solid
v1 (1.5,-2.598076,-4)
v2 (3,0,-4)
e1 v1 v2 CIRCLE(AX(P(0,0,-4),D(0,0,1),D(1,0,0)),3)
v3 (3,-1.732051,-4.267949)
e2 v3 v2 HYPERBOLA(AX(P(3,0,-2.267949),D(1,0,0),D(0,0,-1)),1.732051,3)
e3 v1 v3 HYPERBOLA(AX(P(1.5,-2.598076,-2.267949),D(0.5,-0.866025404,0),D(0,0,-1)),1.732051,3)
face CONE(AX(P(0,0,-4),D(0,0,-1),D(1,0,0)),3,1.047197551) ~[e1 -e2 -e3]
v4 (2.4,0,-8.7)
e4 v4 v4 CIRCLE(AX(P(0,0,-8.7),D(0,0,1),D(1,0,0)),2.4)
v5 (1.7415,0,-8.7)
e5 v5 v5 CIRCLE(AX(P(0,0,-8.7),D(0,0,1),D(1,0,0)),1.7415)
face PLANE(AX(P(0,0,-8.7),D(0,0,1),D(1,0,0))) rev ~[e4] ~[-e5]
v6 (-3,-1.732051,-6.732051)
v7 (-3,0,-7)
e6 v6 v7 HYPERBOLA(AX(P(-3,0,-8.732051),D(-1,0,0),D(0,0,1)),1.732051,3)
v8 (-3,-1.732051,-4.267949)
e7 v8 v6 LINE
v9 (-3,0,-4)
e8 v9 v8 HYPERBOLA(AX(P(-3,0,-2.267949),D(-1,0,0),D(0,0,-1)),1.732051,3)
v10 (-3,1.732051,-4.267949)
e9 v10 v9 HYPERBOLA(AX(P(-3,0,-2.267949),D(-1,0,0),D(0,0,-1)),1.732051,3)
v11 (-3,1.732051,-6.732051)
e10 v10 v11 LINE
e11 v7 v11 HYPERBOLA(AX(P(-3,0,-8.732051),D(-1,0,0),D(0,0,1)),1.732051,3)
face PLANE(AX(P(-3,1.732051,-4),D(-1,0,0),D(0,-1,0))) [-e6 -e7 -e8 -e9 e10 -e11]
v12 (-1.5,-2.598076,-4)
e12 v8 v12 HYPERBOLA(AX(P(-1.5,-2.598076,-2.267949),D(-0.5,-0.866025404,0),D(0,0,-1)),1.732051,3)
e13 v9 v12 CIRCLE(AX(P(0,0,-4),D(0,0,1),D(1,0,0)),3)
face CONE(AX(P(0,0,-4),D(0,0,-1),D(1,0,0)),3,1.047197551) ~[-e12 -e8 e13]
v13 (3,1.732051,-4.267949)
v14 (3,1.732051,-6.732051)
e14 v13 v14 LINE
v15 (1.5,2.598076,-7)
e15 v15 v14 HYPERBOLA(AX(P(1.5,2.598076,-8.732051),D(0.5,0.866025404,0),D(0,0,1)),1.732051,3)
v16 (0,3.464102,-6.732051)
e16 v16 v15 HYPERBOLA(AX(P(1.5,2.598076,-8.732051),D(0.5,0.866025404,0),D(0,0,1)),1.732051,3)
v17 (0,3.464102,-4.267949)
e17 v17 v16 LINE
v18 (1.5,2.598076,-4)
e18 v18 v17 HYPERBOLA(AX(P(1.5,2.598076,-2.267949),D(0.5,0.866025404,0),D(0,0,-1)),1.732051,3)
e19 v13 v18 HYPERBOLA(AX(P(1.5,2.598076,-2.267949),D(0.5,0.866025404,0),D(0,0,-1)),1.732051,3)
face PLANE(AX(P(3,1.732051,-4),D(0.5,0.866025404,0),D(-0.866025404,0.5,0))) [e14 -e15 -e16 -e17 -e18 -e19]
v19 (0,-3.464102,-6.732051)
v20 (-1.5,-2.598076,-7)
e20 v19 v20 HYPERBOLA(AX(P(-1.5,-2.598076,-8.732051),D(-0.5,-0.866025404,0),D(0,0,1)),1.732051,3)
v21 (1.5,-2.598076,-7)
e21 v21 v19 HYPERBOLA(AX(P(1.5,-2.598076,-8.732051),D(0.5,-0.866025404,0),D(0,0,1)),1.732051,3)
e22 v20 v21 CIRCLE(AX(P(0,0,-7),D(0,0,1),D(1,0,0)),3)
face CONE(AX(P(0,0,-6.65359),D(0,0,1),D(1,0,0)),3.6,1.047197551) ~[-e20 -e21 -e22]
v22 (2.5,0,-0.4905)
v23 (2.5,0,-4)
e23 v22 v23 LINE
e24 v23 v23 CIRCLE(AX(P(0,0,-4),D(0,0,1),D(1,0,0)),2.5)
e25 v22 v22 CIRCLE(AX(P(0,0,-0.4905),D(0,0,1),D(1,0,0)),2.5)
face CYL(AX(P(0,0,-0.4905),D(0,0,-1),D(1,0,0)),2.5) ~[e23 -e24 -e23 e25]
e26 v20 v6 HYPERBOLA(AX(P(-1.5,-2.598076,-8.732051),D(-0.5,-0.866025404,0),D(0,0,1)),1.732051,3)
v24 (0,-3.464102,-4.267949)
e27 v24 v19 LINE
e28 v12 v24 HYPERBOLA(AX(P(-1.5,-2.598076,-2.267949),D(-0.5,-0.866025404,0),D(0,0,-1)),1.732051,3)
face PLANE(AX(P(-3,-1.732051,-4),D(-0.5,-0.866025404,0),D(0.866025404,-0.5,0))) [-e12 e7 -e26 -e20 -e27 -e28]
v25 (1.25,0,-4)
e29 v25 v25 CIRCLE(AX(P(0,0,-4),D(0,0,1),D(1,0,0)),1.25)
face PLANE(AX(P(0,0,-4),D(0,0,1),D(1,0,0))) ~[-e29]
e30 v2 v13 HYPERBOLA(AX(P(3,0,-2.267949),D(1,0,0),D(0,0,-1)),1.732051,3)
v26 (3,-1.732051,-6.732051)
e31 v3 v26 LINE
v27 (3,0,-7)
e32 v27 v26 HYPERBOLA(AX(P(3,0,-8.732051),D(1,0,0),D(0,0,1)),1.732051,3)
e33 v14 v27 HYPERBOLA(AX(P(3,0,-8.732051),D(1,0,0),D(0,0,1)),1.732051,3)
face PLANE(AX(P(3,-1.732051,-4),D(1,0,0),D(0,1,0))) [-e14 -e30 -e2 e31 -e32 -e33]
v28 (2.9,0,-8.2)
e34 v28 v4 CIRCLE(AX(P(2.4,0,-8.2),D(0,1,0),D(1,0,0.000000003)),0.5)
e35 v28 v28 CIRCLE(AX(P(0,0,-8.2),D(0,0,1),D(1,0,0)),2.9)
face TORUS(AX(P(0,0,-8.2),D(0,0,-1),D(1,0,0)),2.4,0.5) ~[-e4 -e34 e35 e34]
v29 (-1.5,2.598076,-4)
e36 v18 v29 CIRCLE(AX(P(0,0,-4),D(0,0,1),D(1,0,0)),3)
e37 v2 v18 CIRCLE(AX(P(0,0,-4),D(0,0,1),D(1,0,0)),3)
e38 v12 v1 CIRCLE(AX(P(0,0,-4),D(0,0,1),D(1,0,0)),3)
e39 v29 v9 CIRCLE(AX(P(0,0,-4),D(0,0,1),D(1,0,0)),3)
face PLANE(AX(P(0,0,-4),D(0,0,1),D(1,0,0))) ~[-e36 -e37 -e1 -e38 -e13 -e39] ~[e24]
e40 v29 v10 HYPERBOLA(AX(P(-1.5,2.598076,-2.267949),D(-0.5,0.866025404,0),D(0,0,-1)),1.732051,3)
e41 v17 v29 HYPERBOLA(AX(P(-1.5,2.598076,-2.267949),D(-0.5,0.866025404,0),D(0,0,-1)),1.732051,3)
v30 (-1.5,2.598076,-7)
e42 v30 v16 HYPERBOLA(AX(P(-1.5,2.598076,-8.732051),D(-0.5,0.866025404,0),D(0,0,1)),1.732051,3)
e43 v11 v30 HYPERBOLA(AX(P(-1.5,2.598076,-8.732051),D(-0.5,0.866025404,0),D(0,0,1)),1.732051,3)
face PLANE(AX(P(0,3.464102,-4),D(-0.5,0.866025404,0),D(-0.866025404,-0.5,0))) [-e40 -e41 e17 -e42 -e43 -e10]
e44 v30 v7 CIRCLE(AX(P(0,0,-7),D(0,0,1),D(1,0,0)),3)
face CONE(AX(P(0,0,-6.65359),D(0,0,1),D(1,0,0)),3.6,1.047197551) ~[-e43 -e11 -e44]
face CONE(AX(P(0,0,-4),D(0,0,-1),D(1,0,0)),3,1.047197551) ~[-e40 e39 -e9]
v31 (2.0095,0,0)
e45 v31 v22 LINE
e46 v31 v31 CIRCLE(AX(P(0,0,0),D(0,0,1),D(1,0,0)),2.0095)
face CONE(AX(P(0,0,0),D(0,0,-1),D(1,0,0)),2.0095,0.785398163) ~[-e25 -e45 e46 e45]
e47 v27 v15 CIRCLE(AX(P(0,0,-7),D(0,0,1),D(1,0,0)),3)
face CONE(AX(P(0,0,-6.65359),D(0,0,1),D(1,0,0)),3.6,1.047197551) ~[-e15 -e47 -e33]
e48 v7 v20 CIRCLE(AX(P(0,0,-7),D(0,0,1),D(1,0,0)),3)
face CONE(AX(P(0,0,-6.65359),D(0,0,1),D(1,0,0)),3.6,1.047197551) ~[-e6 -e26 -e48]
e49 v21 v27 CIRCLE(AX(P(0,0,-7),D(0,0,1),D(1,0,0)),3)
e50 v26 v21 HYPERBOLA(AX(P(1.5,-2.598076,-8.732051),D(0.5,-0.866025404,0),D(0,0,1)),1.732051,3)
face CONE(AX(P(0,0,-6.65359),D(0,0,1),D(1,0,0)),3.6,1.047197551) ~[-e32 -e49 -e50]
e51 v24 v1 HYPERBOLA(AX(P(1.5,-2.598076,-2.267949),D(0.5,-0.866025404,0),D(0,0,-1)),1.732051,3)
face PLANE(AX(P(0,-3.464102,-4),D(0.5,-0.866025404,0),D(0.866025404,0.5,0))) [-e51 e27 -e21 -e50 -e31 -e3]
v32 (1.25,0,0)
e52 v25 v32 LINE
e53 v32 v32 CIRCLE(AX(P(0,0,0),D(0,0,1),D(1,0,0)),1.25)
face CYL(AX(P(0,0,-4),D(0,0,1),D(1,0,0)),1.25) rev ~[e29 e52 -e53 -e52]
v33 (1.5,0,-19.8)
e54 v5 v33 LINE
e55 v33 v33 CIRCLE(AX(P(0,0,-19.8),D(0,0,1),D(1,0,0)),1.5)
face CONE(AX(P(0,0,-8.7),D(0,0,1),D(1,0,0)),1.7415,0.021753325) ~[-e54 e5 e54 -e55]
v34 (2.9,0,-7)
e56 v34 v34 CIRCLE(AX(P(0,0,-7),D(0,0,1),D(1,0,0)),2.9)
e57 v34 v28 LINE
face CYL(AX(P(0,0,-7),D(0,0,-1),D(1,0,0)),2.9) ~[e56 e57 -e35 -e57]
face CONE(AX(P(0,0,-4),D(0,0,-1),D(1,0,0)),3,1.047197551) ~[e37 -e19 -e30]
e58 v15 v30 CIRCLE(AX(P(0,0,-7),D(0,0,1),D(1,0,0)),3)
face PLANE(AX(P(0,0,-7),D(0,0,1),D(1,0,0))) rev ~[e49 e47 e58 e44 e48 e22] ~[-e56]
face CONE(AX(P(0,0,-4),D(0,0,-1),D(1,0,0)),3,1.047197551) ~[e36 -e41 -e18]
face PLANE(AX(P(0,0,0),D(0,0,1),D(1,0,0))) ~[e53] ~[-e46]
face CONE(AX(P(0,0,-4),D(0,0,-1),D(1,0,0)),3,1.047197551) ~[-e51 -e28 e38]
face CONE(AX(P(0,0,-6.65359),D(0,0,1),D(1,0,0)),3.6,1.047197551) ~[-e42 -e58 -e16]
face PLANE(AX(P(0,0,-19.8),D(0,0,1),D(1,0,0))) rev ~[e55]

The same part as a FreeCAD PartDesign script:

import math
import FreeCAD as App
import Part
import Sketcher

V = App.Vector
Q = App.Units.Quantity


def add_polygon(sketch, points):
    """Adds a closed chain of lines whose ends are joined by coincident constraints."""
    first, n = sketch.GeometryCount, len(points)
    for a, b in zip(points, points[1:] + points[:1]):
        sketch.addGeometry(Part.LineSegment(App.Vector(*a, 0), App.Vector(*b, 0)), False)
    for i in range(n):
        sketch.addConstraint(Sketcher.Constraint("Coincident", first + i, 2, first + (i + 1) % n, 1))

doc = App.newDocument("Part")
params = doc.addObject("Spreadsheet::Sheet", "Params")
for row, (alias, value) in enumerate([
    ("sketch1_radius", "0.5 mm"),
    ("sketch1_height", "4 mm"),
    ("sketch1_width", "1.5 mm"),
    ("sketch1_width2", "0.1 mm"),
    ("sketch1_width3", "0.5 mm"),
    ("revolution_angle", "360 deg"),
    ("sketch2_width", "12 mm"),
    ("pocket1_length", "3 mm"),
], start=1):
    params.set(f"A{row}", alias)
    params.set(f"B{row}", "=" + value)
    params.setAlias(f"B{row}", alias)

body = doc.addObject("PartDesign::Body", "Body")

sketch1 = body.newObject("Sketcher::SketchObject", "Sketch")
sketch1.AttachmentSupport = (doc.getObject("YZ_Plane"), [""])
sketch1.MapMode = "FlatFace"
sketch1.addGeometry(Part.LineSegment(V(1.25, -4, 0), V(0, -4, 0)), False)
sketch1.addGeometry(Part.LineSegment(V(0, -4, 0), V(0, -19.8, 0)), False)
sketch1.addGeometry(Part.LineSegment(V(0, -19.8, 0), V(1.5, -19.8, 0)), False)
sketch1.addGeometry(Part.LineSegment(V(1.5, -19.8, 0), V(1.74, -8.7, 0)), False)
sketch1.addGeometry(Part.LineSegment(V(1.74, -8.7, 0), V(2.4, -8.7, 0)), False)
sketch1.addGeometry(Part.ArcOfCircle(Part.Circle(V(2.4, -8.2, 0), V(0, 0, 1), 0.5), math.radians(-90), math.radians(0)), False)
sketch1.addGeometry(Part.LineSegment(V(2.9, -8.2, 0), V(2.9, -7, 0)), False)
sketch1.addGeometry(Part.LineSegment(V(2.9, -7, 0), V(3, -7, 0)), False)
sketch1.addGeometry(Part.LineSegment(V(3, -7, 0), V(3.6, -6.65, 0)), False)
sketch1.addGeometry(Part.LineSegment(V(3.6, -6.65, 0), V(3.6, -4.35, 0)), False)
sketch1.addGeometry(Part.LineSegment(V(3.6, -4.35, 0), V(3, -4, 0)), False)
sketch1.addGeometry(Part.LineSegment(V(3, -4, 0), V(2.5, -4, 0)), False)
sketch1.addGeometry(Part.LineSegment(V(2.5, -4, 0), V(2.5, -0.49, 0)), False)
sketch1.addGeometry(Part.LineSegment(V(2.5, -0.49, 0), V(2.01, 0, 0)), False)
sketch1.addGeometry(Part.LineSegment(V(2.01, 0, 0), V(1.25, 0, 0)), False)
sketch1.addGeometry(Part.LineSegment(V(1.25, 0, 0), V(1.25, -4, 0)), False)
sketch1.addConstraint(Sketcher.Constraint("Coincident", 0, 2, 1, 1))
sketch1.addConstraint(Sketcher.Constraint("Coincident", 1, 2, 2, 1))
sketch1.addConstraint(Sketcher.Constraint("Coincident", 2, 2, 3, 1))
sketch1.addConstraint(Sketcher.Constraint("Coincident", 3, 2, 4, 1))
sketch1.addConstraint(Sketcher.Constraint("Tangent", 4, 2, 5, 1))
sketch1.addConstraint(Sketcher.Constraint("Tangent", 5, 2, 6, 1))
sketch1.addConstraint(Sketcher.Constraint("Coincident", 6, 2, 7, 1))
sketch1.addConstraint(Sketcher.Constraint("Coincident", 7, 2, 8, 1))
sketch1.addConstraint(Sketcher.Constraint("Coincident", 8, 2, 9, 1))
sketch1.addConstraint(Sketcher.Constraint("Coincident", 9, 2, 10, 1))
sketch1.addConstraint(Sketcher.Constraint("Coincident", 10, 2, 11, 1))
sketch1.addConstraint(Sketcher.Constraint("Coincident", 11, 2, 12, 1))
sketch1.addConstraint(Sketcher.Constraint("Coincident", 12, 2, 13, 1))
sketch1.addConstraint(Sketcher.Constraint("Coincident", 13, 2, 14, 1))
sketch1.addConstraint(Sketcher.Constraint("Coincident", 14, 2, 15, 1))
sketch1.addConstraint(Sketcher.Constraint("Coincident", 15, 2, 0, 1))
sketch1.addConstraint(Sketcher.Constraint("Horizontal", 0))
sketch1.addConstraint(Sketcher.Constraint("Vertical", 1))
sketch1.addConstraint(Sketcher.Constraint("Horizontal", 2))
sketch1.addConstraint(Sketcher.Constraint("Horizontal", 4))
sketch1.addConstraint(Sketcher.Constraint("Vertical", 6))
sketch1.addConstraint(Sketcher.Constraint("Horizontal", 7))
sketch1.addConstraint(Sketcher.Constraint("Vertical", 9))
sketch1.addConstraint(Sketcher.Constraint("Horizontal", 11))
sketch1.addConstraint(Sketcher.Constraint("Vertical", 12))
sketch1.addConstraint(Sketcher.Constraint("Horizontal", 14))
sketch1.addConstraint(Sketcher.Constraint("Vertical", 15))
sketch1.addConstraint(Sketcher.Constraint("PointOnObject", 0, 2, -2))
sketch1.addConstraint(Sketcher.Constraint("PointOnObject", 13, 2, -1))
sketch1.addConstraint(Sketcher.Constraint("Horizontal", 0, 2, 10, 2))
sketch1.addConstraint(Sketcher.Constraint("Vertical", 7, 2, 10, 2))
sketch1.addConstraint(Sketcher.Constraint("Equal", 8, 10))
sketch1.addConstraint(Sketcher.Constraint("Radius", 5, 0.5))
sketch1.addConstraint(Sketcher.Constraint("DistanceY", 15, 2, 15, 1, 4.0))
sketch1.addConstraint(Sketcher.Constraint("Angle", 8, Q("30 deg")))
sketch1.addConstraint(Sketcher.Constraint("Angle", 13, Q("135 deg")))
sketch1.addConstraint(Sketcher.Constraint("DistanceX", 2, 1, 2, 2, 1.5))
sketch1.addConstraint(Sketcher.Constraint("DistanceX", 7, 1, 7, 2, 0.1))
sketch1.addConstraint(Sketcher.Constraint("DistanceX", 11, 2, 11, 1, 0.5))
sketch1.addConstraint(Sketcher.Constraint("DistanceY", 1, 2, 1, 1, 15.8))
sketch1.addConstraint(Sketcher.Constraint("DistanceY", 6, 1, 6, 2, 1.2))
sketch1.addConstraint(Sketcher.Constraint("DistanceY", 6, 2, -1, 1, 7.0))
sketch1.addConstraint(Sketcher.Constraint("DistanceX", -1, 1, 7, 2, 3.0))
sketch1.addConstraint(Sketcher.Constraint("DistanceX", 0, 2, 0, 1, 1.25))
sketch1.addConstraint(Sketcher.Constraint("DistanceX", -1, 1, 8, 2, 3.6))
sketch1.addConstraint(Sketcher.Constraint("DistanceX", 4, 1, 4, 2, 0.6585))
sketch1.addConstraint(Sketcher.Constraint("DistanceX", 14, 2, 14, 1, 0.7595))
sketch1.setExpression("Constraints[32]", "Params.sketch1_radius")
sketch1.setExpression("Constraints[33]", "Params.sketch1_height")
sketch1.setExpression("Constraints[36]", "Params.sketch1_width")
sketch1.setExpression("Constraints[37]", "Params.sketch1_width2")
sketch1.setExpression("Constraints[38]", "Params.sketch1_width3")
revolution = body.newObject("PartDesign::Revolution", "Revolution")
revolution.Profile = sketch1
revolution.ReferenceAxis = (sketch1, ["V_Axis"])
revolution.setExpression("Angle", "Params.revolution_angle")

sketch2 = body.newObject("Sketcher::SketchObject", "Sketch001")
sketch2.AttachmentSupport = (doc.getObject("XY_Plane"), [""])
sketch2.MapMode = "FlatFace"
sketch2.AttachmentOffset = App.Placement(V(0, 0, -4), App.Rotation())
add_polygon(sketch2, [(-6, 6), (-6, -6), (6, -6), (6, 6)])
add_polygon(sketch2, [(0, -3.5), (-3, -1.7), (-3, 1.7), (0, 3.5), (3, 1.7), (3, -1.7)])
sketch2.addConstraint(Sketcher.Constraint("Vertical", 0))
sketch2.addConstraint(Sketcher.Constraint("Horizontal", 1))
sketch2.addConstraint(Sketcher.Constraint("Vertical", 2))
sketch2.addConstraint(Sketcher.Constraint("Horizontal", 3))
sketch2.addConstraint(Sketcher.Constraint("Vertical", 5))
sketch2.addConstraint(Sketcher.Constraint("Vertical", 8))
sketch2.addConstraint(Sketcher.Constraint("Symmetric", 0, 2, 2, 2, -1, 1))
sketch2.addConstraint(Sketcher.Constraint("Symmetric", 4, 2, 7, 2, -1, 1))
sketch2.addConstraint(Sketcher.Constraint("Symmetric", 6, 2, 9, 2, -1, 1))
sketch2.addConstraint(Sketcher.Constraint("PointOnObject", 6, 2, -2))
sketch2.addConstraint(Sketcher.Constraint("Parallel", 6, 9))
sketch2.addConstraint(Sketcher.Constraint("Horizontal", 5, 2, 7, 2))
sketch2.addConstraint(Sketcher.Constraint("Equal", 3, 0))
sketch2.addConstraint(Sketcher.Constraint("DistanceX", 1, 1, 1, 2, 12.0))
sketch2.addConstraint(Sketcher.Constraint("Angle", 4, Q("150 deg")))
sketch2.addConstraint(Sketcher.Constraint("DistanceX", 4, 2, -1, 1, 3.0))
sketch2.addConstraint(Sketcher.Constraint("DistanceY", 5, 1, 5, 2, 3.464102))
sketch2.setExpression("Constraints[23]", "Params.sketch2_width")
pocket1 = body.newObject("PartDesign::Pocket", "Pocket")
pocket1.Profile = sketch2
pocket1.setExpression("Length", "Params.pocket1_length")

doc.recompute()
